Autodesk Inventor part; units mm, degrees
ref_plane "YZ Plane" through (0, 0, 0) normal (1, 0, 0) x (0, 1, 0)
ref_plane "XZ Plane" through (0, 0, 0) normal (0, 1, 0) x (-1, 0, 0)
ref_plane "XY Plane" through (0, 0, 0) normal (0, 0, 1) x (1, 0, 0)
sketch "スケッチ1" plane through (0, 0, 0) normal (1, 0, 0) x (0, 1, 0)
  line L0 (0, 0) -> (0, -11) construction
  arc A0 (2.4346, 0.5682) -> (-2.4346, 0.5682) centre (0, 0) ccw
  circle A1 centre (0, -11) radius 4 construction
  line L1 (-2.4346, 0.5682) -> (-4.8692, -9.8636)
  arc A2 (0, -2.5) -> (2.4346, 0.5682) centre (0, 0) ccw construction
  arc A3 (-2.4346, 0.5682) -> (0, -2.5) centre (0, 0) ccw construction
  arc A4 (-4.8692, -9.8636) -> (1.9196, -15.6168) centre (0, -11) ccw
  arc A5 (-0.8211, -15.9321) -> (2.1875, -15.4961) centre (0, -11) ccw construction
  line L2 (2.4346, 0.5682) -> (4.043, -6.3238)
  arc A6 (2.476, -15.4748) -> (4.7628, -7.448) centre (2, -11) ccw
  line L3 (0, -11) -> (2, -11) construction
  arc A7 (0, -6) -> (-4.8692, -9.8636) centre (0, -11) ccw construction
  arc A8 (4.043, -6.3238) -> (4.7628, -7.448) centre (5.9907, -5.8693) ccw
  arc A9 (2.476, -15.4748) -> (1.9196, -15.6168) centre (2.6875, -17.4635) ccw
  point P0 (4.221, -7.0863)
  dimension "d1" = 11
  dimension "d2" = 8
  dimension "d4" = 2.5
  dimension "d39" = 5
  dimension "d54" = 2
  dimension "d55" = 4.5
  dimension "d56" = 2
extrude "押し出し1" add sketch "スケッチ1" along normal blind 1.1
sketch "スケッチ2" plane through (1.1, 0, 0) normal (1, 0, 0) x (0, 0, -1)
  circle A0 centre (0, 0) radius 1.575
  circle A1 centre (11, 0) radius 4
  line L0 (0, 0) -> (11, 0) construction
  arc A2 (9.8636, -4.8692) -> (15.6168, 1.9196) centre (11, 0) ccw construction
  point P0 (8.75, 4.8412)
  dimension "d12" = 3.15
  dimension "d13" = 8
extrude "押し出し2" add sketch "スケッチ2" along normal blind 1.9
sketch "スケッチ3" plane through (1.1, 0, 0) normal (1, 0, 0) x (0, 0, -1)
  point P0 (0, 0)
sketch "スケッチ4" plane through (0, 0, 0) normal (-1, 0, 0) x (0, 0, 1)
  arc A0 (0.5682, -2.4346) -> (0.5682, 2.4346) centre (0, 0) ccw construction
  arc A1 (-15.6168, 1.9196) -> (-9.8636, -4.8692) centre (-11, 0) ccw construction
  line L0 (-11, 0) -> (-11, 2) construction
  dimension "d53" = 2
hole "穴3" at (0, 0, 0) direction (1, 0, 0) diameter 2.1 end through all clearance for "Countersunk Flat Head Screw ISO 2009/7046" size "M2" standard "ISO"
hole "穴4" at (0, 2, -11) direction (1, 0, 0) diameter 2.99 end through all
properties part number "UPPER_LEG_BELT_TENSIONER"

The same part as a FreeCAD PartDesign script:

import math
import FreeCAD as App
import Part
import Sketcher

V = App.Vector

doc = App.newDocument("Part")
body = doc.addObject("PartDesign::Body", "Body")

sketch1 = body.newObject("Sketcher::SketchObject", "Sketch")
sketch1.AttachmentSupport = (doc.getObject("YZ_Plane"), [""])
sketch1.MapMode = "FlatFace"
sketch1.addGeometry(Part.LineSegment(V(4, -6.3, 0), V(2.4, 0.6, 0)), False)
sketch1.addGeometry(Part.ArcOfCircle(Part.Circle(V(0, 0, 0), V(0, 0, 1), 2.5), math.radians(13), math.radians(167)), False)
sketch1.addGeometry(Part.LineSegment(V(-2.4, 0.6, 0), V(-4.9, -9.9, 0)), False)
sketch1.addGeometry(Part.ArcOfCircle(Part.Circle(V(0, -11, 0), V(0, 0, 1), 5), math.radians(167), math.radians(293)), False)
sketch1.addGeometry(Part.ArcOfCircle(Part.Circle(V(2.7, -17.5, 0), V(0, 0, 1), 2), math.radians(96.08), math.radians(112.56)), False)
sketch1.addGeometry(Part.ArcOfCircle(Part.Circle(V(2, -11, 0), V(0, 0, 1), 4.5), math.radians(-84), math.radians(52)), False)
sketch1.addGeometry(Part.ArcOfCircle(Part.Circle(V(6, -5.9, 0), V(0, 0, 1), 2), math.radians(-167), math.radians(-128)), False)
sketch1.addConstraint(Sketcher.Constraint("Tangent", 0, 2, 1, 1))
sketch1.addConstraint(Sketcher.Constraint("Tangent", 1, 2, 2, 1))
sketch1.addConstraint(Sketcher.Constraint("Tangent", 2, 2, 3, 1))
sketch1.addConstraint(Sketcher.Constraint("Tangent", 3, 2, 4, 2))
sketch1.addConstraint(Sketcher.Constraint("Tangent", 4, 1, 5, 1))
sketch1.addConstraint(Sketcher.Constraint("Tangent", 5, 2, 6, 2))
sketch1.addConstraint(Sketcher.Constraint("Tangent", 6, 1, 0, 1))
sketch1.addConstraint(Sketcher.Constraint("Coincident", 1, 3, -1, 1))
sketch1.addConstraint(Sketcher.Constraint("PointOnObject", 3, 3, -2))
sketch1.addConstraint(Sketcher.Constraint("Horizontal", 3, 3, 5, 3))
sketch1.addConstraint(Sketcher.Constraint("Horizontal", 0, 2, 1, 2))
sketch1.addConstraint(Sketcher.Constraint("Radius", 3, 5.0))
sketch1.addConstraint(Sketcher.Constraint("Radius", 6, 2.0))
sketch1.addConstraint(Sketcher.Constraint("Radius", 1, 2.5))
sketch1.addConstraint(Sketcher.Constraint("Radius", 5, 4.5))
sketch1.addConstraint(Sketcher.Constraint("DistanceY", 3, 3, -1, 1, 11.0))
sketch1.addConstraint(Sketcher.Constraint("DistanceX", -1, 1, 5, 3, 2.0))
sketch1.addConstraint(Sketcher.Constraint("Radius", 4, 2.0037))
pad1 = body.newObject("PartDesign::Pad", "Pad")
pad1.Profile = sketch1
pad1.Length = 1.1

sketch2 = body.newObject("Sketcher::SketchObject", "Sketch001")
sketch2.AttachmentSupport = (doc.getObject("YZ_Plane"), [""])
sketch2.MapMode = "FlatFace"
sketch2.AttachmentOffset = App.Placement(V(0, 0, 1.1), App.Rotation())
sketch2.addGeometry(Part.Circle(V(0, 0, 0), V(0, 0, 1), 1.6), False)
sketch2.addGeometry(Part.Circle(V(0, -11, 0), V(0, 0, 1), 4), False)
sketch2.addConstraint(Sketcher.Constraint("Coincident", 0, 3, -1, 1))
sketch2.addConstraint(Sketcher.Constraint("PointOnObject", 1, 3, -2))
sketch2.addConstraint(Sketcher.Constraint("Diameter", 1, 8.0))
sketch2.addConstraint(Sketcher.Constraint("Diameter", 0, 3.15))
sketch2.addConstraint(Sketcher.Constraint("DistanceY", 1, 3, -1, 1, 11.0))
pad2 = body.newObject("PartDesign::Pad", "Pad001")
pad2.Profile = sketch2
pad2.Length = 1.9

sketch3 = body.newObject("Sketcher::SketchObject", "Sketch002")
sketch3.AttachmentSupport = (doc.getObject("YZ_Plane"), [""])
sketch3.MapMode = "FlatFace"
sketch3.addGeometry(Part.Circle(V(0, 0, 0), V(0, 0, 1), 1.1), False)
sketch3.addConstraint(Sketcher.Constraint("Coincident", 0, 3, -1, 1))
sketch3.addConstraint(Sketcher.Constraint("Diameter", 0, 2.1))
doc.recompute()
hole = body.newObject("PartDesign::Hole", "Hole")
hole.Profile = sketch3
hole.ThreadType = "None"
hole.Diameter = 2.1
hole.DepthType = "ThroughAll"
hole.Reversed = True

sketch4 = body.newObject("Sketcher::SketchObject", "Sketch003")
sketch4.AttachmentSupport = (doc.getObject("YZ_Plane"), [""])
sketch4.MapMode = "FlatFace"
sketch4.addGeometry(Part.Circle(V(2, -11, 0), V(0, 0, 1), 1.5), False)
sketch4.addConstraint(Sketcher.Constraint("Diameter", 0, 2.99))
sketch4.addConstraint(Sketcher.Constraint("DistanceX", -1, 1, 0, 3, 2.0))
sketch4.addConstraint(Sketcher.Constraint("DistanceY", 0, 3, -1, 1, 11.0))
doc.recompute()
hole2 = body.newObject("PartDesign::Hole", "Hole001")
hole2.Profile = sketch4
hole2.ThreadType = "None"
hole2.Diameter = 2.99
hole2.DepthType = "ThroughAll"
hole2.Reversed = True

doc.recompute()
